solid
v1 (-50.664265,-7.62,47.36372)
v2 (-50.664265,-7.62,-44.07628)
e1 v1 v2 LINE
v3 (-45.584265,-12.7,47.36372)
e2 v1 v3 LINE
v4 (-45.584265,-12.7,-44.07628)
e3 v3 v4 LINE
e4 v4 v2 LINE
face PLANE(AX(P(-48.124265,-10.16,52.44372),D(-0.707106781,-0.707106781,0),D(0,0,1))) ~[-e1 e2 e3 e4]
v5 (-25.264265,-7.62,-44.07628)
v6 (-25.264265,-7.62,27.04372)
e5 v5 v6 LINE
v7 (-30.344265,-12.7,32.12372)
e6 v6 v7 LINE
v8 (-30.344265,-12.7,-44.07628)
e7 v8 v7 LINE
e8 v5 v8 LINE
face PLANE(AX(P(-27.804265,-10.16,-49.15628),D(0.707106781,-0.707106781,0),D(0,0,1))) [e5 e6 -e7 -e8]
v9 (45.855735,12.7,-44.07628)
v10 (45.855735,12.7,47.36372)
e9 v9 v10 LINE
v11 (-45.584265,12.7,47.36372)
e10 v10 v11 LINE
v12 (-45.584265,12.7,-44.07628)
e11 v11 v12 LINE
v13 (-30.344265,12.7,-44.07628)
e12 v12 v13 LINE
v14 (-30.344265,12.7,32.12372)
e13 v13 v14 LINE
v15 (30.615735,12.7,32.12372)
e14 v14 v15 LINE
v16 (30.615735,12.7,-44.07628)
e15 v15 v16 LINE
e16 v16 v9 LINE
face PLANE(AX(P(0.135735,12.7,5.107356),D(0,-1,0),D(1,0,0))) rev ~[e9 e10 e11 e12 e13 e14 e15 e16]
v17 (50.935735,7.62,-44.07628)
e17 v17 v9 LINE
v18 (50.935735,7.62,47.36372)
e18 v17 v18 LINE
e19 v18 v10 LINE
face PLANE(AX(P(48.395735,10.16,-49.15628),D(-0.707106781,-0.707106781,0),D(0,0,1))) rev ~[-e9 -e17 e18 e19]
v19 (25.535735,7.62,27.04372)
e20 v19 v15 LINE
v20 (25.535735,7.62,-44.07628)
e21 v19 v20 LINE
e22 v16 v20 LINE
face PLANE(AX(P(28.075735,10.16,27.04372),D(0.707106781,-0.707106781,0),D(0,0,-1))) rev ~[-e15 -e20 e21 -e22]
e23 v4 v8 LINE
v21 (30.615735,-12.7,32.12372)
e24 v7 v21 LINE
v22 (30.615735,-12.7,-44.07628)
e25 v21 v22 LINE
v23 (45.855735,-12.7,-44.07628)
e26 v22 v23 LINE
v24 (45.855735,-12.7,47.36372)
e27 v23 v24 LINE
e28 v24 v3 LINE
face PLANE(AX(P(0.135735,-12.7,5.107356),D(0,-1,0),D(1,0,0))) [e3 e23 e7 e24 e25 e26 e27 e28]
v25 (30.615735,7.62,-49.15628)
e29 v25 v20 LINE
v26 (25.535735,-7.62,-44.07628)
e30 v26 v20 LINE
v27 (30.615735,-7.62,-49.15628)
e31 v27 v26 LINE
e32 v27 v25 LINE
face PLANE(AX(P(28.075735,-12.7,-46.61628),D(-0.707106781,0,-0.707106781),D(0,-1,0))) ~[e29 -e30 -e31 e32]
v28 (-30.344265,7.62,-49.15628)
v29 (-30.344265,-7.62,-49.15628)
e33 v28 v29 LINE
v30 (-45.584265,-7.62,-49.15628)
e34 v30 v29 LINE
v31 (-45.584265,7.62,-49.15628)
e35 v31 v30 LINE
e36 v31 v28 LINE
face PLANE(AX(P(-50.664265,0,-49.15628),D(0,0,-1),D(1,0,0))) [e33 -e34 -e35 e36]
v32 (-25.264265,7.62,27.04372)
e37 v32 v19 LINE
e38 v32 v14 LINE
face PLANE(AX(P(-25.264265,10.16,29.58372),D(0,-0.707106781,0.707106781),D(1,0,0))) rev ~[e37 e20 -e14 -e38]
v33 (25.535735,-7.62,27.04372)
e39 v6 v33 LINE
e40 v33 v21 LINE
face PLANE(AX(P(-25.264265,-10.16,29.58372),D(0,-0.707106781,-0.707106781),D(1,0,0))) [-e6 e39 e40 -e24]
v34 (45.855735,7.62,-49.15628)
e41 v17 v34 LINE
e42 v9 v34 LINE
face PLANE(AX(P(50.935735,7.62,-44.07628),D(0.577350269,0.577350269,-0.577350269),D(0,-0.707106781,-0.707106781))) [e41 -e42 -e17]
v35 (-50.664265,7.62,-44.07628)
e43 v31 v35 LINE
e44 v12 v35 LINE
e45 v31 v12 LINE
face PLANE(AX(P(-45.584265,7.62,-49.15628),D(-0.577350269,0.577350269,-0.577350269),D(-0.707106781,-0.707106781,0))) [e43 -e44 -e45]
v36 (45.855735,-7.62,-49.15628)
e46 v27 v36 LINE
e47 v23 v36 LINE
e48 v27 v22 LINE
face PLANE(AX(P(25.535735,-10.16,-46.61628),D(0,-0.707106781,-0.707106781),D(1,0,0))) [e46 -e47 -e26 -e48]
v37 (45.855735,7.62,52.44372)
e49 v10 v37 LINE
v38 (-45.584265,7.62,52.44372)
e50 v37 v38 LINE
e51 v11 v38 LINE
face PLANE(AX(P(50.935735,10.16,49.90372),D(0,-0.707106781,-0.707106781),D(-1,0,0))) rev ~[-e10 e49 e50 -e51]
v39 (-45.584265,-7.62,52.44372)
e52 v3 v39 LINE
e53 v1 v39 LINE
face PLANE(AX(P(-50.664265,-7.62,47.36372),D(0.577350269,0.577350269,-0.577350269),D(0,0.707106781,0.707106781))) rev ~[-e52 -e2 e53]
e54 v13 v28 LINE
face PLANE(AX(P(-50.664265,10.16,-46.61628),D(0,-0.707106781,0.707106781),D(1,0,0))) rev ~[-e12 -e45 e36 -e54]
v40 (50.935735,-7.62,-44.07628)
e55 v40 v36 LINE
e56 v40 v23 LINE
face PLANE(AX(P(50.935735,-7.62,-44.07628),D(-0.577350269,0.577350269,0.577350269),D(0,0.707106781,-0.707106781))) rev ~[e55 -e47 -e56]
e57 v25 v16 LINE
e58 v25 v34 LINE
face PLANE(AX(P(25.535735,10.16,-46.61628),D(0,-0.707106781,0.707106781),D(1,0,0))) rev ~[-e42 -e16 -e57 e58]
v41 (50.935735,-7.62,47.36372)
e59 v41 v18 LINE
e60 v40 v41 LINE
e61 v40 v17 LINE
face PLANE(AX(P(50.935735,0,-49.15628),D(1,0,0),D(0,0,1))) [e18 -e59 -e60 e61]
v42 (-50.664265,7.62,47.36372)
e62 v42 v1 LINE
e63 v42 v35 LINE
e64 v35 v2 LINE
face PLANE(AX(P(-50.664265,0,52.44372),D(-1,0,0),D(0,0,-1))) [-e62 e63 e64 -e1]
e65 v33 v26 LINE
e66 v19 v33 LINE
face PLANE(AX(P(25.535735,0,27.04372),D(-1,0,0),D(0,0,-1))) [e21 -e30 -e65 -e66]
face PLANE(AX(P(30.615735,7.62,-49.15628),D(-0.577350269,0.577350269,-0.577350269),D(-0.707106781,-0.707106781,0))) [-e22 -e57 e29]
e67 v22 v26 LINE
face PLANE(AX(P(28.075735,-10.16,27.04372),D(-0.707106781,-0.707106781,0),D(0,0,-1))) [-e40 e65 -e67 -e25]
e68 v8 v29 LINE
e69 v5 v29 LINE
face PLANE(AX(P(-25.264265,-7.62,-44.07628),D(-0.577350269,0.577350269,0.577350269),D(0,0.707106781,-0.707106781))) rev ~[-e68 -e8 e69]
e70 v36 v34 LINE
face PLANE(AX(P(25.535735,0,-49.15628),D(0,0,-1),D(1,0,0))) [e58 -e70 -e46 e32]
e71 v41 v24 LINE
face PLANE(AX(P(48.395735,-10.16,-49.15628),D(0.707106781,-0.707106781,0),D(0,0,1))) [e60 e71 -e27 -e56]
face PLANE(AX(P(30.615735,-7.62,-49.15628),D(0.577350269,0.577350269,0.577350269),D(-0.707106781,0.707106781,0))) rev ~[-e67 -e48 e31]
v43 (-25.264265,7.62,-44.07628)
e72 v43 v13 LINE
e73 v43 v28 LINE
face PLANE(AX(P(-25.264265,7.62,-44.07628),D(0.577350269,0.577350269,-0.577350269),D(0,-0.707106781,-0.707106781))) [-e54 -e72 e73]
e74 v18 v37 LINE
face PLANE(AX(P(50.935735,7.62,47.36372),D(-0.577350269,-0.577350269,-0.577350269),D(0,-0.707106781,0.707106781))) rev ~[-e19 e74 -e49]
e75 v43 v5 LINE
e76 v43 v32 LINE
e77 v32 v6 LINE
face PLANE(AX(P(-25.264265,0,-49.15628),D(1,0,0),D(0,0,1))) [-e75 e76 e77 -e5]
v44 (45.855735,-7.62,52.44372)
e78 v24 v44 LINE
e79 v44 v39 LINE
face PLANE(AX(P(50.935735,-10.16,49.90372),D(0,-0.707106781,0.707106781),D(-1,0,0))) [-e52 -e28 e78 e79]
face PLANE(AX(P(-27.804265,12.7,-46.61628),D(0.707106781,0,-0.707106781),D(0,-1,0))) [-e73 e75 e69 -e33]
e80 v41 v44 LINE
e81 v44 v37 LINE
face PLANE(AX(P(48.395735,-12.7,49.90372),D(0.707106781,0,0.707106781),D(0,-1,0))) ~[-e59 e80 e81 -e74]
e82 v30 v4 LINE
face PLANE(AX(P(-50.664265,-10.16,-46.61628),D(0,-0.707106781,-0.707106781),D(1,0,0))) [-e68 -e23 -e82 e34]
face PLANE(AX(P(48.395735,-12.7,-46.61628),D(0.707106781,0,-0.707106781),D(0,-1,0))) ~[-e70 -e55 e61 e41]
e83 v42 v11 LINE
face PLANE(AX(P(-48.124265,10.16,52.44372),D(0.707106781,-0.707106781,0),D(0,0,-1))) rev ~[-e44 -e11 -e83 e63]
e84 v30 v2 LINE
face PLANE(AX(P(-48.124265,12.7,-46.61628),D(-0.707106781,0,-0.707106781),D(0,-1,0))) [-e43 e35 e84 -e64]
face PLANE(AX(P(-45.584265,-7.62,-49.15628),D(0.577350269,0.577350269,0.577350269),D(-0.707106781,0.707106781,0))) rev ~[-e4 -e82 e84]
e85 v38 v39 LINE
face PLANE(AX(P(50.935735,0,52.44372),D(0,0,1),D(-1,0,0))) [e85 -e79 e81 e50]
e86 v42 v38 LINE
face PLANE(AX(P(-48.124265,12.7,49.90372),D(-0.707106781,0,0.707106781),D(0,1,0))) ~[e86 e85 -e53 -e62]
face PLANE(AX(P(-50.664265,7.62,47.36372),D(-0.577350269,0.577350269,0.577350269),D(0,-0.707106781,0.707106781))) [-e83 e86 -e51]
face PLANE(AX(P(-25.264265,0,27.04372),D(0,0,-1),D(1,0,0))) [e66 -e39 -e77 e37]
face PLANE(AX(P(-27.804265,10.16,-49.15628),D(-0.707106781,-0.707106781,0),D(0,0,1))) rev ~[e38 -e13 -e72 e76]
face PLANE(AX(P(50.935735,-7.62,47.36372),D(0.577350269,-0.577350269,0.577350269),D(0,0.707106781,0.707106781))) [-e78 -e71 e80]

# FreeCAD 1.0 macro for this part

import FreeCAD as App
import Part
import Sketcher
from FreeCAD import Vector
Q = App.Units.Quantity


def edges_at(feature, points):
    """Names of the edges that pass closest to the given points."""
    edges = feature.Shape.Edges
    near = lambda p: min(range(len(edges)), key=lambda i: edges[i].distToShape(Part.Vertex(*p))[0])
    return sorted({f"Edge{near(p) + 1}" for p in points})

doc = App.newDocument("Part")
body = doc.addObject("PartDesign::Body", "Body")

sketch1 = body.newObject("Sketcher::SketchObject", "Sketch")
sketch1.AttachmentSupport = (doc.getObject("XZ_Plane"), [""])
sketch1.MapMode = "FlatFace"
sketch1.addGeometry([
    Part.LineSegment(Vector(51, 52, 0), Vector(-51, 52, 0)),
    Part.LineSegment(Vector(-51, 52, 0), Vector(-51, -49, 0)),
    Part.LineSegment(Vector(-51, -49, 0), Vector(-25, -49, 0)),
    Part.LineSegment(Vector(-25, -49, 0), Vector(-25, 27, 0)),
    Part.LineSegment(Vector(-25, 27, 0), Vector(26, 27, 0)),
    Part.LineSegment(Vector(26, 27, 0), Vector(26, -49, 0)),
    Part.LineSegment(Vector(26, -49, 0), Vector(51, -49, 0)),
    Part.LineSegment(Vector(51, -49, 0), Vector(51, 52, 0)),
], False)
sketch1.addConstraint([
    Sketcher.Constraint("Coincident", 0, 2, 1, 1),
    Sketcher.Constraint("Coincident", 1, 2, 2, 1),
    Sketcher.Constraint("Coincident", 2, 2, 3, 1),
    Sketcher.Constraint("Coincident", 3, 2, 4, 1),
    Sketcher.Constraint("Coincident", 4, 2, 5, 1),
    Sketcher.Constraint("Coincident", 5, 2, 6, 1),
    Sketcher.Constraint("Coincident", 6, 2, 7, 1),
    Sketcher.Constraint("Coincident", 7, 2, 0, 1),
    Sketcher.Constraint("Horizontal", 0),
    Sketcher.Constraint("Vertical", 1),
    Sketcher.Constraint("Horizontal", 2),
    Sketcher.Constraint("Vertical", 3),
    Sketcher.Constraint("Horizontal", 4),
    Sketcher.Constraint("Vertical", 5),
    Sketcher.Constraint("Horizontal", 6),
    Sketcher.Constraint("Vertical", 7),
    Sketcher.Constraint("Horizontal", 2, 2, 5, 2),
    Sketcher.Constraint("Equal", 2, 6),
    Sketcher.Constraint("Equal", 0, 1),
    Sketcher.Constraint("DistanceX", 0, 2, 0, 1, Q("4 in")),
    Sketcher.Constraint("DistanceX", 2, 1, 2, 2, Q("1 in")),
    Sketcher.Constraint("DistanceY", 3, 1, 3, 2, Q("3 in")),
    Sketcher.Constraint("DistanceY", -1, 1, 0, 2, Q("52.44372 mm")),
    Sketcher.Constraint("DistanceX", 0, 2, -1, 1, Q("50.664265 mm")),
])
pad1 = body.newObject("PartDesign::Pad", "Pad")
pad1.Profile = sketch1
pad1.Length = Q("1 in")
pad1.Midplane = True
doc.recompute()

chamfer = body.newObject("PartDesign::Chamfer", "Chamfer")
chamfer.Base = (pad1, edges_at(pad1, [
    (0.136, 12.7, 52.444),
    (-50.664, 12.7, 1.644),
    (-37.964, 12.7, -49.156),
    (-25.264, 12.7, -11.056),
    (0.136, 12.7, 27.044),
    (25.536, 12.7, -11.056),
    (38.236, 12.7, -49.156),
    (50.936, 12.7, 1.644),
    (0.136, -12.7, 52.444),
    (-50.664, -12.7, 1.644),
    (-37.964, -12.7, -49.156),
    (-25.264, -12.7, -11.056),
    (0.136, -12.7, 27.044),
    (25.536, -12.7, -11.056),
    (38.236, -12.7, -49.156),
    (50.936, -12.7, 1.644),
    (-50.664, 0, 52.444),
    (50.936, 0, 52.444),
    (50.936, 0, -49.156),
    (25.536, 0, -49.156),
    (-50.664, 0, -49.156),
    (-25.264, 0, -49.156),
]))
chamfer.Size = Q("0.2 in")

doc.recompute()
